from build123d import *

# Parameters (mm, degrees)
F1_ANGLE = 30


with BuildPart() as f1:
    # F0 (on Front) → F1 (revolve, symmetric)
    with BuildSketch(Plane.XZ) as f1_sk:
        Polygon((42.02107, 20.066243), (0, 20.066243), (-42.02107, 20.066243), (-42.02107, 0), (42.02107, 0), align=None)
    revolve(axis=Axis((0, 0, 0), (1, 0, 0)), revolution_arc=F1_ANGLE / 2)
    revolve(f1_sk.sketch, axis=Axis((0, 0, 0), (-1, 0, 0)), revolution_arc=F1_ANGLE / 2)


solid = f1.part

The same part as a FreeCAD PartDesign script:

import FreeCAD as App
import Part
import Sketcher
Q = App.Units.Quantity


def add_polygon(sketch, points):
    """Adds a closed chain of lines whose ends are joined by coincident constraints."""
    first, n = sketch.GeometryCount, len(points)
    for a, b in zip(points, points[1:] + points[:1]):
        sketch.addGeometry(Part.LineSegment(App.Vector(*a, 0), App.Vector(*b, 0)), False)
    for i in range(n):
        sketch.addConstraint(Sketcher.Constraint("Coincident", first + i, 2, first + (i + 1) % n, 1))

doc = App.newDocument("Part")
body = doc.addObject("PartDesign::Body", "Body")

# Sketch on XZ plane
sketch1 = body.newObject("Sketcher::SketchObject", "Sketch")
sketch1.AttachmentSupport = (doc.getObject("XZ_Plane"), [""])
sketch1.MapMode = "FlatFace"
add_polygon(sketch1, [(42, 20), (-42, 20), (-42, 0), (42, 0)])  # lines 0-3
sketch1.addConstraint(Sketcher.Constraint("Horizontal", 0))
sketch1.addConstraint(Sketcher.Constraint("Vertical", 1))
sketch1.addConstraint(Sketcher.Constraint("Horizontal", 2))
sketch1.addConstraint(Sketcher.Constraint("Vertical", 3))
sketch1.addConstraint(Sketcher.Constraint("Symmetric", 1, 2, 2, 2, -1, 1))
sketch1.addConstraint(Sketcher.Constraint("DistanceX", 0, 2, 0, 1, Q("84.04214 mm")))
sketch1.addConstraint(Sketcher.Constraint("DistanceY", 1, 2, 1, 1, Q("20.066243 mm")))
revolution = body.newObject("PartDesign::Revolution", "Revolution")
revolution.Profile = sketch1
revolution.ReferenceAxis = (sketch1, ["H_Axis"])
revolution.Angle = 15

# Sketch on XZ plane
sketch2 = body.newObject("Sketcher::SketchObject", "Sketch001")
sketch2.AttachmentSupport = (doc.getObject("XZ_Plane"), [""])
sketch2.MapMode = "FlatFace"
add_polygon(sketch2, [(42, 20), (-42, 20), (-42, 0), (42, 0)])  # lines 0-3
sketch2.addConstraint(Sketcher.Constraint("Horizontal", 0))
sketch2.addConstraint(Sketcher.Constraint("Vertical", 1))
sketch2.addConstraint(Sketcher.Constraint("Horizontal", 2))
sketch2.addConstraint(Sketcher.Constraint("Vertical", 3))
sketch2.addConstraint(Sketcher.Constraint("Symmetric", 1, 2, 2, 2, -1, 1))
sketch2.addConstraint(Sketcher.Constraint("DistanceX", 0, 2, 0, 1, Q("84.04214 mm")))
sketch2.addConstraint(Sketcher.Constraint("DistanceY", 1, 2, 1, 1, Q("20.066243 mm")))
revolution2 = body.newObject("PartDesign::Revolution", "Revolution001")
revolution2.Profile = sketch2
revolution2.ReferenceAxis = (sketch2, ["H_Axis"])
revolution2.Angle = 15
revolution2.Reversed = True

doc.recompute()
